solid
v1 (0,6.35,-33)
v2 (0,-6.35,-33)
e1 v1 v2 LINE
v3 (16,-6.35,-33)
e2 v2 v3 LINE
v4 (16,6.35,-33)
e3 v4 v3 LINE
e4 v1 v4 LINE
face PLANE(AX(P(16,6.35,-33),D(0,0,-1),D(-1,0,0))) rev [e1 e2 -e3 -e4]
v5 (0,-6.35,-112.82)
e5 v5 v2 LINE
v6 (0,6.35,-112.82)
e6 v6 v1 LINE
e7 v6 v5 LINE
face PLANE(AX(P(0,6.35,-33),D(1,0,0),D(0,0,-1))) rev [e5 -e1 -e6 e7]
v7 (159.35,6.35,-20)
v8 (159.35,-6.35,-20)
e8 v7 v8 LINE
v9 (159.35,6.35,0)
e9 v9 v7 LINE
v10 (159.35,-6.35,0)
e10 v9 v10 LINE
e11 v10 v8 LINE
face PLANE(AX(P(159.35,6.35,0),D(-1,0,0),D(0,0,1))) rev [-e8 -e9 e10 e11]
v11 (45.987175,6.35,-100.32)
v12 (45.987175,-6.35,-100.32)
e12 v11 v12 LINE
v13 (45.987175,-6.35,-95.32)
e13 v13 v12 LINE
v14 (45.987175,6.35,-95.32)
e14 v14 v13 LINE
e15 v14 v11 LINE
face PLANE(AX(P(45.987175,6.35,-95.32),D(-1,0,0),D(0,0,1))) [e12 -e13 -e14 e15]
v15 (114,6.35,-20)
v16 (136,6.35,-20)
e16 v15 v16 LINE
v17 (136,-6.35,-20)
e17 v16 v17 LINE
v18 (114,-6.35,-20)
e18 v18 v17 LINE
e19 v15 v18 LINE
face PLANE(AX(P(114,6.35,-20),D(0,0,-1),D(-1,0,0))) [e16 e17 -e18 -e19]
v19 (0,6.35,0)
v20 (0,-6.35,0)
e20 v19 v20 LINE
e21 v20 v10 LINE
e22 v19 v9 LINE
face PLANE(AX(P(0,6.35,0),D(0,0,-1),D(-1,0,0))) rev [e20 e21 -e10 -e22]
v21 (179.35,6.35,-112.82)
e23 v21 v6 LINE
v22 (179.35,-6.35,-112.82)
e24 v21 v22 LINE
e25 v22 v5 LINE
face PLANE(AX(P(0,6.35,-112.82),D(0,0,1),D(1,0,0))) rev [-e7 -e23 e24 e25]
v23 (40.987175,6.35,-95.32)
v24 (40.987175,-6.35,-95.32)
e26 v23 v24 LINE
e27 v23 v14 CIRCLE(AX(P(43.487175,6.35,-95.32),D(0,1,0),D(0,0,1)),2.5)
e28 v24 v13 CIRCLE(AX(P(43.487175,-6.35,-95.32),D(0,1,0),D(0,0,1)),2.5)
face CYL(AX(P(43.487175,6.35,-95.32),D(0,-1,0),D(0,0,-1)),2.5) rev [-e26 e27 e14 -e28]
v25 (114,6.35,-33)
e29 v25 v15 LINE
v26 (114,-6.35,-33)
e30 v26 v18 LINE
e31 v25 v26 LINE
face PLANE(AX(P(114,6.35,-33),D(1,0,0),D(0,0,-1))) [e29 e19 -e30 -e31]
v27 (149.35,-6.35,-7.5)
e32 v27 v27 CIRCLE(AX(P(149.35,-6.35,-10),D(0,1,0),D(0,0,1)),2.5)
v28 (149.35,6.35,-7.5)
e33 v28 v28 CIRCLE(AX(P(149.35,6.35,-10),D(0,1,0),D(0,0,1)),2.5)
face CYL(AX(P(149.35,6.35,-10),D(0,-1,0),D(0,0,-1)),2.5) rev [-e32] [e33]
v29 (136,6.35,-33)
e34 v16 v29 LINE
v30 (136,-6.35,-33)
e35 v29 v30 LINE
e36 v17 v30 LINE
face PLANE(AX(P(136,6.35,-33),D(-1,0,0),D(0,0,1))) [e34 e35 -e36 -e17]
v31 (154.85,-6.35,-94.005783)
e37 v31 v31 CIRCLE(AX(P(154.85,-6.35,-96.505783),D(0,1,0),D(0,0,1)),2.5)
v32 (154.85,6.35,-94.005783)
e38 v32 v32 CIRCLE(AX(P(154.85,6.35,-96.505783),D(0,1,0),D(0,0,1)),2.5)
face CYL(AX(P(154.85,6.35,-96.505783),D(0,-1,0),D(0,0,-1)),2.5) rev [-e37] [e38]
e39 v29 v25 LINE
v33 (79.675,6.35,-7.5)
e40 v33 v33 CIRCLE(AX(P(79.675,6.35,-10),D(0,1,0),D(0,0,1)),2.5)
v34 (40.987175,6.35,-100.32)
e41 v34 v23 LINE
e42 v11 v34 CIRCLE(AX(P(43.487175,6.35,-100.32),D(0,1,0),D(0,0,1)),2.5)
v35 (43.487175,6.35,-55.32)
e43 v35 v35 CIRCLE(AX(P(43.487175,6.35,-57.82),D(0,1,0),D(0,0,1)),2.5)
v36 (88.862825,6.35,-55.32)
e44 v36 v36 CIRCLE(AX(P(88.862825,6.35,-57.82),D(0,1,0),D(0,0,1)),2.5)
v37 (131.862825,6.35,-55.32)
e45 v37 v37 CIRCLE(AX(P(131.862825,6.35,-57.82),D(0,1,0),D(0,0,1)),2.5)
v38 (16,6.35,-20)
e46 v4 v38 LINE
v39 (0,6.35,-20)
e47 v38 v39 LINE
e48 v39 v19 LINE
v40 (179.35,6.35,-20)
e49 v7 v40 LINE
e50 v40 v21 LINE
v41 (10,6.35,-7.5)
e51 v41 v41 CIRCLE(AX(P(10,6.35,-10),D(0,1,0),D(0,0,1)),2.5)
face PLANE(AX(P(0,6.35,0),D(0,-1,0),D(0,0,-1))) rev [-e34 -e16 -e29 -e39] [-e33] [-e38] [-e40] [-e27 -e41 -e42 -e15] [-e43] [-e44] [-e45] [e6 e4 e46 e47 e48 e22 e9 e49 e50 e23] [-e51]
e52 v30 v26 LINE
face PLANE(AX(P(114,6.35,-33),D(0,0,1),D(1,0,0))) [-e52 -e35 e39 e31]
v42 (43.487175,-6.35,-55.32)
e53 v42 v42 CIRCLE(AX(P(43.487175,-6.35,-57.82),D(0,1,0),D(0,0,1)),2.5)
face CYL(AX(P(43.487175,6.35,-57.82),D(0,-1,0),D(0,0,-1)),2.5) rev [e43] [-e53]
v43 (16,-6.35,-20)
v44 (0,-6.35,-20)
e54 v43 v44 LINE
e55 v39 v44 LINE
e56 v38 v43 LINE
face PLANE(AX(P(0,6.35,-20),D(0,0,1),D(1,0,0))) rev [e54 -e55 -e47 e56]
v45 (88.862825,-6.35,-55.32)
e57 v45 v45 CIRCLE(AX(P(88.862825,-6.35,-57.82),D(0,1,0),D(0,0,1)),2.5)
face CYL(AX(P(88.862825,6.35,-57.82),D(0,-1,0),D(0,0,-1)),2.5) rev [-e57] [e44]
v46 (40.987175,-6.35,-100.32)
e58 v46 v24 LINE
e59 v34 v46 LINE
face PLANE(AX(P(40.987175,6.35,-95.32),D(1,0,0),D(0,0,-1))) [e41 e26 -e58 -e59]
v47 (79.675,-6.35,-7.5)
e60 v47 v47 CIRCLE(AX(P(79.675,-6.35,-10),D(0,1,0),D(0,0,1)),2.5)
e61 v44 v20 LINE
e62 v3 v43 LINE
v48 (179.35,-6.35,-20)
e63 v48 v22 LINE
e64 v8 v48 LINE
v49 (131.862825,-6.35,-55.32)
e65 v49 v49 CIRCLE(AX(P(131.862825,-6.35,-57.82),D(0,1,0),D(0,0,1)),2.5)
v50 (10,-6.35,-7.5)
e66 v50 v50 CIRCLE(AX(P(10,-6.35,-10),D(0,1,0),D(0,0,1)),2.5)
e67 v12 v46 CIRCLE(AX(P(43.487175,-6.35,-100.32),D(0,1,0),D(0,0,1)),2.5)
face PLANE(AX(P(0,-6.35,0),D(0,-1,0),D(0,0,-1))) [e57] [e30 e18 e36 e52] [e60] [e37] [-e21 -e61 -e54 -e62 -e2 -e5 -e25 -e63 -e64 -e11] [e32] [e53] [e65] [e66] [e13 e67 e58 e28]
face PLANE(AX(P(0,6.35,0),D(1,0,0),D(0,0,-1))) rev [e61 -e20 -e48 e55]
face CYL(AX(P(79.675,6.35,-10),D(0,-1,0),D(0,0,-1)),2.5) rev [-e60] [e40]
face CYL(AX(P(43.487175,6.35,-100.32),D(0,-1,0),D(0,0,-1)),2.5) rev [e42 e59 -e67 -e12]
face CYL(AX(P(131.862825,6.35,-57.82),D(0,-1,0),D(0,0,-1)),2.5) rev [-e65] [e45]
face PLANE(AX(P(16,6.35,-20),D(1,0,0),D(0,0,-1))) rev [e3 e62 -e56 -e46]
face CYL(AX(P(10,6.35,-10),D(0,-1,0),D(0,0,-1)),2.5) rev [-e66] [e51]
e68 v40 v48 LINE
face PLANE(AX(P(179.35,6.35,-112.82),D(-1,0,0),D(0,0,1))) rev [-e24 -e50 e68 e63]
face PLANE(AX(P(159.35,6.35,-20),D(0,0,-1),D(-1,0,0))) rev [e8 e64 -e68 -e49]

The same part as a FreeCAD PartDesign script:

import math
import FreeCAD as App
import Part
import Sketcher

V = App.Vector

doc = App.newDocument("Part")
body = doc.addObject("PartDesign::Body", "Body")

# Sketch on XZ plane
sketch1 = doc.addObject("Sketcher::SketchObject", "Sketch")
body.addObject(sketch1)
sketch1.AttachmentSupport = (doc.XZ_Plane, [""])
sketch1.MapMode = "FlatFace"
sketch1.addGeometry(Part.LineSegment(V(0, 0, 0), V(159.3, 0, 0)), False)
sketch1.addGeometry(Part.LineSegment(V(159.3, 0, 0), V(159.3, -20, 0)), False)
sketch1.addGeometry(Part.LineSegment(V(159.3, -20, 0), V(179.3, -20, 0)), False)
sketch1.addGeometry(Part.LineSegment(V(179.3, -20, 0), V(179.3, -112.8, 0)), False)
sketch1.addGeometry(Part.LineSegment(V(179.3, -112.8, 0), V(0, -112.8, 0)), False)
sketch1.addGeometry(Part.LineSegment(V(0, -112.8, 0), V(0, -33, 0)), False)
sketch1.addGeometry(Part.LineSegment(V(0, -33, 0), V(16, -33, 0)), False)
sketch1.addGeometry(Part.LineSegment(V(16, -33, 0), V(16, -20, 0)), False)
sketch1.addGeometry(Part.LineSegment(V(16, -20, 0), V(0, -20, 0)), False)
sketch1.addGeometry(Part.LineSegment(V(0, -20, 0), V(0, 0, 0)), False)
sketch1.addGeometry(Part.Circle(V(10, -10, 0), V(0, 0, 1), 2.5), False)
sketch1.addGeometry(Part.Circle(V(79.7, -10, 0), V(0, 0, 1), 2.5), False)
sketch1.addGeometry(Part.Circle(V(149.3, -10, 0), V(0, 0, 1), 2.5), False)
sketch1.addGeometry(Part.LineSegment(V(136, -20, 0), V(114, -20, 0)), False)
sketch1.addGeometry(Part.LineSegment(V(114, -20, 0), V(114, -33, 0)), False)
sketch1.addGeometry(Part.LineSegment(V(114, -33, 0), V(136, -33, 0)), False)
sketch1.addGeometry(Part.LineSegment(V(136, -33, 0), V(136, -20, 0)), False)
sketch1.addGeometry(Part.Circle(V(43.5, -57.8, 0), V(0, 0, 1), 2.5), False)
sketch1.addGeometry(Part.ArcOfCircle(Part.Circle(V(43.5, -95.3, 0), V(0, 0, 1), 2.5), math.radians(0), math.radians(180)), False)
sketch1.addGeometry(Part.LineSegment(V(41, -95.3, 0), V(41, -100.3, 0)), False)
sketch1.addGeometry(Part.ArcOfCircle(Part.Circle(V(43.5, -100.3, 0), V(0, 0, 1), 2.5), math.radians(180), math.radians(360)), False)
sketch1.addGeometry(Part.LineSegment(V(46, -100.3, 0), V(46, -95.3, 0)), False)
sketch1.addGeometry(Part.Circle(V(88.9, -57.8, 0), V(0, 0, 1), 2.5), False)
sketch1.addGeometry(Part.Circle(V(131.9, -57.8, 0), V(0, 0, 1), 2.5), False)
sketch1.addGeometry(Part.Circle(V(154.8, -96.5, 0), V(0, 0, 1), 2.5), False)
sketch1.addConstraint(Sketcher.Constraint("Coincident", 0, 2, 1, 1))
sketch1.addConstraint(Sketcher.Constraint("Coincident", 1, 2, 2, 1))
sketch1.addConstraint(Sketcher.Constraint("Coincident", 2, 2, 3, 1))
sketch1.addConstraint(Sketcher.Constraint("Coincident", 3, 2, 4, 1))
sketch1.addConstraint(Sketcher.Constraint("Coincident", 4, 2, 5, 1))
sketch1.addConstraint(Sketcher.Constraint("Coincident", 5, 2, 6, 1))
sketch1.addConstraint(Sketcher.Constraint("Coincident", 6, 2, 7, 1))
sketch1.addConstraint(Sketcher.Constraint("Coincident", 7, 2, 8, 1))
sketch1.addConstraint(Sketcher.Constraint("Coincident", 8, 2, 9, 1))
sketch1.addConstraint(Sketcher.Constraint("Coincident", 9, 2, 0, 1))
sketch1.addConstraint(Sketcher.Constraint("Coincident", 13, 2, 14, 1))
sketch1.addConstraint(Sketcher.Constraint("Coincident", 14, 2, 15, 1))
sketch1.addConstraint(Sketcher.Constraint("Coincident", 15, 2, 16, 1))
sketch1.addConstraint(Sketcher.Constraint("Coincident", 16, 2, 13, 1))
sketch1.addConstraint(Sketcher.Constraint("Tangent", 18, 2, 19, 1))
sketch1.addConstraint(Sketcher.Constraint("Tangent", 19, 2, 20, 1))
sketch1.addConstraint(Sketcher.Constraint("Tangent", 20, 2, 21, 1))
sketch1.addConstraint(Sketcher.Constraint("Tangent", 21, 2, 18, 1))
sketch1.addConstraint(Sketcher.Constraint("Horizontal", 0))
sketch1.addConstraint(Sketcher.Constraint("Vertical", 1))
sketch1.addConstraint(Sketcher.Constraint("Horizontal", 2))
sketch1.addConstraint(Sketcher.Constraint("Vertical", 3))
sketch1.addConstraint(Sketcher.Constraint("Horizontal", 4))
sketch1.addConstraint(Sketcher.Constraint("Vertical", 5))
sketch1.addConstraint(Sketcher.Constraint("Horizontal", 6))
sketch1.addConstraint(Sketcher.Constraint("Vertical", 7))
sketch1.addConstraint(Sketcher.Constraint("Horizontal", 8))
sketch1.addConstraint(Sketcher.Constraint("Vertical", 9))
sketch1.addConstraint(Sketcher.Constraint("Horizontal", 13))
sketch1.addConstraint(Sketcher.Constraint("Vertical", 14))
sketch1.addConstraint(Sketcher.Constraint("Horizontal", 15))
sketch1.addConstraint(Sketcher.Constraint("Vertical", 16))
sketch1.addConstraint(Sketcher.Constraint("Vertical", 19))
sketch1.addConstraint(Sketcher.Constraint("Vertical", 21))
sketch1.addConstraint(Sketcher.Constraint("Coincident", 9, 2, -1, 1))
sketch1.addConstraint(Sketcher.Constraint("Equal", 10, 11))
sketch1.addConstraint(Sketcher.Constraint("Equal", 11, 12))
sketch1.addConstraint(Sketcher.Constraint("Equal", 12, 17))
sketch1.addConstraint(Sketcher.Constraint("Equal", 17, 18))
sketch1.addConstraint(Sketcher.Constraint("Equal", 20, 22))
sketch1.addConstraint(Sketcher.Constraint("Equal", 22, 23))
sketch1.addConstraint(Sketcher.Constraint("Equal", 23, 24))
sketch1.addConstraint(Sketcher.Constraint("PointOnObject", 4, 2, -2))
sketch1.addConstraint(Sketcher.Constraint("Horizontal", 10, 3, 11, 3))
sketch1.addConstraint(Sketcher.Constraint("Horizontal", 11, 3, 12, 3))
sketch1.addConstraint(Sketcher.Constraint("Horizontal", 17, 3, 22, 3))
sketch1.addConstraint(Sketcher.Constraint("Horizontal", 22, 3, 23, 3))
sketch1.addConstraint(Sketcher.Constraint("Horizontal", 2, 2, 7, 2))
sketch1.addConstraint(Sketcher.Constraint("Horizontal", 8, 2, 13, 2))
sketch1.addConstraint(Sketcher.Constraint("Horizontal", 6, 2, 14, 2))
sketch1.addConstraint(Sketcher.Constraint("Vertical", 17, 3, 18, 3))
sketch1.addConstraint(Sketcher.Constraint("Equal", 2, 1))
sketch1.addConstraint(Sketcher.Constraint("Diameter", 10, 5.0))
sketch1.addConstraint(Sketcher.Constraint("DistanceX", 2, 1, 2, 2, 20.0))
sketch1.addConstraint(Sketcher.Constraint("DistanceX", 6, 1, 6, 2, 16.0))
sketch1.addConstraint(Sketcher.Constraint("DistanceX", 13, 2, 13, 1, 22.0))
sketch1.addConstraint(Sketcher.Constraint("DistanceY", 7, 1, 7, 2, 13.0))
sketch1.addConstraint(Sketcher.Constraint("DistanceY", 19, 2, 19, 1, 5.0))
sketch1.addConstraint(Sketcher.Constraint("DistanceX", -1, 1, 10, 3, 10.0))
sketch1.addConstraint(Sketcher.Constraint("DistanceY", 10, 3, -1, 1, 10.0))
sketch1.addConstraint(Sketcher.Constraint("DistanceX", -1, 1, 13, 2, 114.0))
sketch1.addConstraint(Sketcher.Constraint("DistanceX", 22, 3, 23, 3, 43.0))
sketch1.addConstraint(Sketcher.Constraint("DistanceX", 12, 3, 0, 2, 10.0))
sketch1.addConstraint(Sketcher.Constraint("DistanceY", 3, 2, 23, 3, 55.0))
sketch1.addConstraint(Sketcher.Constraint("DistanceX", 0, 1, 0, 2, 159.35))
sketch1.addConstraint(Sketcher.Constraint("DistanceY", 3, 2, 3, 1, 92.82))
sketch1.addConstraint(Sketcher.Constraint("DistanceY", 18, 3, 17, 3, 37.5))
sketch1.addConstraint(Sketcher.Constraint("DistanceX", 12, 3, 24, 3, 5.5))
sketch1.addConstraint(Sketcher.Constraint("DistanceX", -1, 1, 11, 3, 79.675))
sketch1.addConstraint(Sketcher.Constraint("DistanceX", 17, 3, 22, 3, 45.375649))
sketch1.addConstraint(Sketcher.Constraint("DistanceX", -1, 1, 17, 3, 43.487175))
sketch1.addConstraint(Sketcher.Constraint("DistanceY", 24, 3, -1, 1, 96.505783))
pad1 = doc.addObject("PartDesign::Pad", "Pad")
body.addObject(pad1)
pad1.Profile = sketch1
pad1.Length = 12.7
pad1.Midplane = True

doc.recompute()
